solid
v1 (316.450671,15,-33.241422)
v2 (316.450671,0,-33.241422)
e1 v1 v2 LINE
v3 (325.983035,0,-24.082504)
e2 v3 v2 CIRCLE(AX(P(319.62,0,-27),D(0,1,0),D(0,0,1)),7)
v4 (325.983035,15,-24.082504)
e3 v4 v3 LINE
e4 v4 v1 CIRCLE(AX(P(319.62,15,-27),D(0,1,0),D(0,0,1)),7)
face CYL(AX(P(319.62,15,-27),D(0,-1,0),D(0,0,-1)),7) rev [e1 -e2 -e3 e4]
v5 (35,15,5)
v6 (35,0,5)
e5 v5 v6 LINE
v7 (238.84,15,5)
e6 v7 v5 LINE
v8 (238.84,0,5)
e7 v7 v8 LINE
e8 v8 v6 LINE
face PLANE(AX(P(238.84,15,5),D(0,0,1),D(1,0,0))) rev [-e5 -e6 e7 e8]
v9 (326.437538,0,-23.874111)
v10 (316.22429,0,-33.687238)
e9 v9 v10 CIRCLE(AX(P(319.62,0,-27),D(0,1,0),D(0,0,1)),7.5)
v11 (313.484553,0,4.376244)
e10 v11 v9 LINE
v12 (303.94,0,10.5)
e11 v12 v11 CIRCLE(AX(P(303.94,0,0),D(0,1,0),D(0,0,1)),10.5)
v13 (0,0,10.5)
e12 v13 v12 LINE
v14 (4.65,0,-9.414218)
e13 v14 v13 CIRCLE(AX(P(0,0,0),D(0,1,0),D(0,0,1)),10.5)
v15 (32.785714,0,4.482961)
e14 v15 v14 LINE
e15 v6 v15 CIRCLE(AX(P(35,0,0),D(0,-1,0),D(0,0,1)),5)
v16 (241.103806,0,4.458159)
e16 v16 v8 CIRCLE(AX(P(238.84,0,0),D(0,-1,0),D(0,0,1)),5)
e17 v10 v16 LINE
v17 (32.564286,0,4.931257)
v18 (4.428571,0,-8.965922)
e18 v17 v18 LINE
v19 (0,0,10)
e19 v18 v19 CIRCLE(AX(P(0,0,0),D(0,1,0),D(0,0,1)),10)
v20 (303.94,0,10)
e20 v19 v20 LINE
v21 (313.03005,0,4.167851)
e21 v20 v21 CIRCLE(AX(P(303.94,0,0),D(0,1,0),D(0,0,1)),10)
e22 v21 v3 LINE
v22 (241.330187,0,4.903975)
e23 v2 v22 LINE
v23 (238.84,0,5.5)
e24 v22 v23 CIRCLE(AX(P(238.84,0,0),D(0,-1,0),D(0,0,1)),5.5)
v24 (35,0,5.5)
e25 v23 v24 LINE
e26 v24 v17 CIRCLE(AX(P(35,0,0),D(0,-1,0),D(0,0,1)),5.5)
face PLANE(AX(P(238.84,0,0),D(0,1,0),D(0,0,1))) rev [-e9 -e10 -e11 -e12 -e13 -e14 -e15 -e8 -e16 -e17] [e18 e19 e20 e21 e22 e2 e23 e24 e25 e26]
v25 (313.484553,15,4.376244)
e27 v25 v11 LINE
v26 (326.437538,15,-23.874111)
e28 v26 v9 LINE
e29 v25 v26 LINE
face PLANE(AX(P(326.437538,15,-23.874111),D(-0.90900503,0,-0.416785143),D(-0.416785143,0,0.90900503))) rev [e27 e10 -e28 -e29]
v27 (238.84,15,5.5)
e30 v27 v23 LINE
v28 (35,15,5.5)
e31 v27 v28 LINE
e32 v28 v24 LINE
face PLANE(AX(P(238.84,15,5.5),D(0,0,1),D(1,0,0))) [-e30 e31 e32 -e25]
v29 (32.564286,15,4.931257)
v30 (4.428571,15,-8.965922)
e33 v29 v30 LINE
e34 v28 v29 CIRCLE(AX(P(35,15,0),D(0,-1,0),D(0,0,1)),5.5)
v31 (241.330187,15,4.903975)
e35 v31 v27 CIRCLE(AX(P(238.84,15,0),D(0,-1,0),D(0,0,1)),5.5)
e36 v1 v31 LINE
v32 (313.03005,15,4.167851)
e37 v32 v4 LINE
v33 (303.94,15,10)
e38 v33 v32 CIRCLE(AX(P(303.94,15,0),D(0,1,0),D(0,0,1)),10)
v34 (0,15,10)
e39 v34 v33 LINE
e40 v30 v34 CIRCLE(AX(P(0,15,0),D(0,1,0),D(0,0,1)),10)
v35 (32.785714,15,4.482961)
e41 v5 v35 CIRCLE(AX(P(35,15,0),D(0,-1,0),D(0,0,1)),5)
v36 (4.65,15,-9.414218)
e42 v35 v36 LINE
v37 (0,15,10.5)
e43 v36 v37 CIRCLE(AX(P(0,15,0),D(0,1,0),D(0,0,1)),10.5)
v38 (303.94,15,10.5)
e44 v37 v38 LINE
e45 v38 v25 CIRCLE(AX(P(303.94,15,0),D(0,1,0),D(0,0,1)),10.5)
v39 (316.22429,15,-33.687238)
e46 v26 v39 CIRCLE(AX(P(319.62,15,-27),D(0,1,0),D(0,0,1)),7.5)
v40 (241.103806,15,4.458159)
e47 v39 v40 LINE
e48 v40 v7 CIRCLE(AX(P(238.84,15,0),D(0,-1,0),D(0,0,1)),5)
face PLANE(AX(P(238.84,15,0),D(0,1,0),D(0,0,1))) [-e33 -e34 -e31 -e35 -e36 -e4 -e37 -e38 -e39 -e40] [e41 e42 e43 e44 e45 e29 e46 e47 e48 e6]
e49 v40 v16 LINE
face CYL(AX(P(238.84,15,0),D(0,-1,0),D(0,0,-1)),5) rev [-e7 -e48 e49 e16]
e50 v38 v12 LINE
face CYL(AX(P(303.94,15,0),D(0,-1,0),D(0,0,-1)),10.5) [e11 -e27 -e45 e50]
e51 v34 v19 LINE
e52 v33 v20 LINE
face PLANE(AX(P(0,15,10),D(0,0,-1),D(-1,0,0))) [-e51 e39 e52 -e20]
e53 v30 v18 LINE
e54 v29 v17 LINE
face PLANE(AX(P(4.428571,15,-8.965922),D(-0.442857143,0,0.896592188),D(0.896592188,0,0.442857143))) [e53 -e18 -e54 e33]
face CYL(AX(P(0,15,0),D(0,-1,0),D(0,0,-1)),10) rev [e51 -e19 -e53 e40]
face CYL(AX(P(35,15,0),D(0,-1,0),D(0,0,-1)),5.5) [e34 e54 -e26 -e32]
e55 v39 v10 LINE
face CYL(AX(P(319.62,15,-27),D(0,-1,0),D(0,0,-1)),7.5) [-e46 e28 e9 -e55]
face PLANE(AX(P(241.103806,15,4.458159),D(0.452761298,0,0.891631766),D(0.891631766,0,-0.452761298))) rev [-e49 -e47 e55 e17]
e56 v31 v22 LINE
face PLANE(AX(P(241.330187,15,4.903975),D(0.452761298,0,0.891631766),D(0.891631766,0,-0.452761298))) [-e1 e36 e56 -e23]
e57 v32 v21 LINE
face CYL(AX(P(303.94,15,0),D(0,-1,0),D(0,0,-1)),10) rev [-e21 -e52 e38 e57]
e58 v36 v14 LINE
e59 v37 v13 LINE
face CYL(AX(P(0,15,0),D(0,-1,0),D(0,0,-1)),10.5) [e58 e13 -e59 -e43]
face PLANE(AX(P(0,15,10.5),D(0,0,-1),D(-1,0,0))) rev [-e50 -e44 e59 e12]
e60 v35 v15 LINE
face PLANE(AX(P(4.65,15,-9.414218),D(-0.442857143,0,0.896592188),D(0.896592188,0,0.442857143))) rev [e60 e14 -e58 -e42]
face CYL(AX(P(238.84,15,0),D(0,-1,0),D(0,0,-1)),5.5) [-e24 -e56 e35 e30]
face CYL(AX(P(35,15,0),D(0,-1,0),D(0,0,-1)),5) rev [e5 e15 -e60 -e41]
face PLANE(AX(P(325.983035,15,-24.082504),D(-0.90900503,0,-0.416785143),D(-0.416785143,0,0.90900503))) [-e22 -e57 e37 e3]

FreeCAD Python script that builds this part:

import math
import FreeCAD as App
import Part
import Sketcher

V = App.Vector
Q = App.Units.Quantity

doc = App.newDocument("Part")
params = doc.addObject("Spreadsheet::Sheet", "Params")
for row, (alias, value) in enumerate([
    ("sketch1_radius", "5 mm"),
    ("sketch1_radius2", "10 mm"),
    ("sketch1_radius3", "7 mm"),
    ("sketch1_radius4", "10.5 mm"),
    ("sketch1_width", "203.84 mm"),
    ("pad1_length", "15 mm"),
], start=1):
    params.set(f"A{row}", alias)
    params.set(f"B{row}", "=" + value)
    params.setAlias(f"B{row}", alias)

body = doc.addObject("PartDesign::Body", "Body")

sketch1 = doc.addObject("Sketcher::SketchObject", "Sketch")
body.addObject(sketch1)
sketch1.AttachmentSupport = (doc.XZ_Plane, [""])
sketch1.MapMode = "FlatFace"
sketch1.addGeometry(Part.LineSegment(V(238.84, 5, 0), V(35, 5, 0)), False)
sketch1.addGeometry(Part.ArcOfCircle(Part.Circle(V(35, 0, 0), V(0, 0, 1), 5), math.radians(90), math.radians(116.286321)), False)
sketch1.addGeometry(Part.LineSegment(V(32.785714, 4.482961, 0), V(4.65, -9.414218, 0)), False)
sketch1.addGeometry(Part.ArcOfCircle(Part.Circle(V(0, 0, 0), V(0, 0, 1), 10.5), math.radians(90), math.radians(296.286321)), False)
sketch1.addGeometry(Part.LineSegment(V(0, 10.5, 0), V(303.94, 10.5, 0)), False)
sketch1.addGeometry(Part.ArcOfCircle(Part.Circle(V(303.94, 0, 0), V(0, 0, 1), 10.5), math.radians(24.631786), math.radians(90)), False)
sketch1.addGeometry(Part.LineSegment(V(313.484553, 4.376244, 0), V(326.437538, -23.874111, 0)), False)
sketch1.addGeometry(Part.ArcOfCircle(Part.Circle(V(319.62, -27, 0), V(0, 0, 1), 7.5), math.radians(-116.920984), math.radians(24.631786)), False)
sketch1.addGeometry(Part.LineSegment(V(316.22429, -33.687238, 0), V(241.103806, 4.458159, 0)), False)
sketch1.addGeometry(Part.ArcOfCircle(Part.Circle(V(238.84, 0, 0), V(0, 0, 1), 5), math.radians(63.079015), math.radians(90)), False)
sketch1.addGeometry(Part.LineSegment(V(303.94, 10, 0), V(0, 10, 0)), False)
sketch1.addGeometry(Part.ArcOfCircle(Part.Circle(V(0, 0, 0), V(0, 0, 1), 10), math.radians(90), math.radians(296.286321)), False)
sketch1.addGeometry(Part.LineSegment(V(4.428571, -8.965922, 0), V(32.564286, 4.931257, 0)), False)
sketch1.addGeometry(Part.ArcOfCircle(Part.Circle(V(35, 0, 0), V(0, 0, 1), 5.5), math.radians(90), math.radians(116.286321)), False)
sketch1.addGeometry(Part.LineSegment(V(35, 5.5, 0), V(238.84, 5.5, 0)), False)
sketch1.addGeometry(Part.ArcOfCircle(Part.Circle(V(238.84, 0, 0), V(0, 0, 1), 5.5), math.radians(63.079015), math.radians(90)), False)
sketch1.addGeometry(Part.LineSegment(V(241.330187, 4.903975, 0), V(316.450671, -33.241422, 0)), False)
sketch1.addGeometry(Part.ArcOfCircle(Part.Circle(V(319.62, -27, 0), V(0, 0, 1), 7), math.radians(-116.920984), math.radians(24.631786)), False)
sketch1.addGeometry(Part.LineSegment(V(325.983035, -24.082504, 0), V(313.03005, 4.167851, 0)), False)
sketch1.addGeometry(Part.ArcOfCircle(Part.Circle(V(303.94, 0, 0), V(0, 0, 1), 10), math.radians(24.631786), math.radians(90)), False)
sketch1.addConstraint(Sketcher.Constraint("Tangent", 0, 2, 1, 1))
sketch1.addConstraint(Sketcher.Constraint("Tangent", 1, 2, 2, 1))
sketch1.addConstraint(Sketcher.Constraint("Tangent", 2, 2, 3, 2))
sketch1.addConstraint(Sketcher.Constraint("Tangent", 3, 1, 4, 1))
sketch1.addConstraint(Sketcher.Constraint("Tangent", 4, 2, 5, 2))
sketch1.addConstraint(Sketcher.Constraint("Tangent", 5, 1, 6, 1))
sketch1.addConstraint(Sketcher.Constraint("Tangent", 6, 2, 7, 2))
sketch1.addConstraint(Sketcher.Constraint("Tangent", 7, 1, 8, 1))
sketch1.addConstraint(Sketcher.Constraint("Tangent", 8, 2, 9, 1))
sketch1.addConstraint(Sketcher.Constraint("Tangent", 9, 2, 0, 1))
sketch1.addConstraint(Sketcher.Constraint("Tangent", 10, 2, 11, 1))
sketch1.addConstraint(Sketcher.Constraint("Tangent", 11, 2, 12, 1))
sketch1.addConstraint(Sketcher.Constraint("Tangent", 12, 2, 13, 2))
sketch1.addConstraint(Sketcher.Constraint("Tangent", 13, 1, 14, 1))
sketch1.addConstraint(Sketcher.Constraint("Tangent", 14, 2, 15, 2))
sketch1.addConstraint(Sketcher.Constraint("Tangent", 15, 1, 16, 1))
sketch1.addConstraint(Sketcher.Constraint("Tangent", 16, 2, 17, 1))
sketch1.addConstraint(Sketcher.Constraint("Tangent", 17, 2, 18, 1))
sketch1.addConstraint(Sketcher.Constraint("Tangent", 18, 2, 19, 1))
sketch1.addConstraint(Sketcher.Constraint("Tangent", 19, 2, 10, 1))
sketch1.addConstraint(Sketcher.Constraint("Horizontal", 0))
sketch1.addConstraint(Sketcher.Constraint("Horizontal", 4))
sketch1.addConstraint(Sketcher.Constraint("Horizontal", 10))
sketch1.addConstraint(Sketcher.Constraint("Horizontal", 14))
sketch1.addConstraint(Sketcher.Constraint("Coincident", 3, 3, -1, 1))
sketch1.addConstraint(Sketcher.Constraint("Coincident", 11, 3, -1, 1))
sketch1.addConstraint(Sketcher.Constraint("Coincident", 13, 3, 1, 3))
sketch1.addConstraint(Sketcher.Constraint("Coincident", 15, 3, 9, 3))
sketch1.addConstraint(Sketcher.Constraint("Coincident", 17, 3, 7, 3))
sketch1.addConstraint(Sketcher.Constraint("Coincident", 19, 3, 5, 3))
sketch1.addConstraint(Sketcher.Constraint("Equal", 3, 5))
sketch1.addConstraint(Sketcher.Constraint("Equal", 1, 9))
sketch1.addConstraint(Sketcher.Constraint("PointOnObject", 1, 3, -1))
sketch1.addConstraint(Sketcher.Constraint("Parallel", 2, 12))
sketch1.addConstraint(Sketcher.Constraint("Parallel", 8, 16))
sketch1.addConstraint(Sketcher.Constraint("Radius", 1, Q("5 mm")))
sketch1.addConstraint(Sketcher.Constraint("Radius", 11, Q("10 mm")))
sketch1.addConstraint(Sketcher.Constraint("Radius", 17, Q("7 mm")))
sketch1.addConstraint(Sketcher.Constraint("Radius", 3, Q("10.5 mm")))
sketch1.addConstraint(Sketcher.Constraint("DistanceX", -1, 1, 1, 3, Q("35 mm")))
sketch1.addConstraint(Sketcher.Constraint("DistanceY", 7, 3, -1, 1, Q("27 mm")))
sketch1.addConstraint(Sketcher.Constraint("DistanceX", 0, 2, 0, 1, Q("203.84 mm")))
sketch1.addConstraint(Sketcher.Constraint("DistanceX", 4, 1, 4, 2, Q("303.94 mm")))
sketch1.addConstraint(Sketcher.Constraint("DistanceX", -1, 1, 7, 3, Q("319.62 mm")))
sketch1.setExpression("Constraints[35]", "Params.sketch1_radius")
sketch1.setExpression("Constraints[36]", "Params.sketch1_radius2")
sketch1.setExpression("Constraints[37]", "Params.sketch1_radius3")
sketch1.setExpression("Constraints[38]", "Params.sketch1_radius4")
sketch1.setExpression("Constraints[41]", "Params.sketch1_width")
pad1 = doc.addObject("PartDesign::Pad", "Pad")
body.addObject(pad1)
pad1.Profile = sketch1
pad1.setExpression("Length", "Params.pad1_length")
pad1.Reversed = True

doc.recompute()
